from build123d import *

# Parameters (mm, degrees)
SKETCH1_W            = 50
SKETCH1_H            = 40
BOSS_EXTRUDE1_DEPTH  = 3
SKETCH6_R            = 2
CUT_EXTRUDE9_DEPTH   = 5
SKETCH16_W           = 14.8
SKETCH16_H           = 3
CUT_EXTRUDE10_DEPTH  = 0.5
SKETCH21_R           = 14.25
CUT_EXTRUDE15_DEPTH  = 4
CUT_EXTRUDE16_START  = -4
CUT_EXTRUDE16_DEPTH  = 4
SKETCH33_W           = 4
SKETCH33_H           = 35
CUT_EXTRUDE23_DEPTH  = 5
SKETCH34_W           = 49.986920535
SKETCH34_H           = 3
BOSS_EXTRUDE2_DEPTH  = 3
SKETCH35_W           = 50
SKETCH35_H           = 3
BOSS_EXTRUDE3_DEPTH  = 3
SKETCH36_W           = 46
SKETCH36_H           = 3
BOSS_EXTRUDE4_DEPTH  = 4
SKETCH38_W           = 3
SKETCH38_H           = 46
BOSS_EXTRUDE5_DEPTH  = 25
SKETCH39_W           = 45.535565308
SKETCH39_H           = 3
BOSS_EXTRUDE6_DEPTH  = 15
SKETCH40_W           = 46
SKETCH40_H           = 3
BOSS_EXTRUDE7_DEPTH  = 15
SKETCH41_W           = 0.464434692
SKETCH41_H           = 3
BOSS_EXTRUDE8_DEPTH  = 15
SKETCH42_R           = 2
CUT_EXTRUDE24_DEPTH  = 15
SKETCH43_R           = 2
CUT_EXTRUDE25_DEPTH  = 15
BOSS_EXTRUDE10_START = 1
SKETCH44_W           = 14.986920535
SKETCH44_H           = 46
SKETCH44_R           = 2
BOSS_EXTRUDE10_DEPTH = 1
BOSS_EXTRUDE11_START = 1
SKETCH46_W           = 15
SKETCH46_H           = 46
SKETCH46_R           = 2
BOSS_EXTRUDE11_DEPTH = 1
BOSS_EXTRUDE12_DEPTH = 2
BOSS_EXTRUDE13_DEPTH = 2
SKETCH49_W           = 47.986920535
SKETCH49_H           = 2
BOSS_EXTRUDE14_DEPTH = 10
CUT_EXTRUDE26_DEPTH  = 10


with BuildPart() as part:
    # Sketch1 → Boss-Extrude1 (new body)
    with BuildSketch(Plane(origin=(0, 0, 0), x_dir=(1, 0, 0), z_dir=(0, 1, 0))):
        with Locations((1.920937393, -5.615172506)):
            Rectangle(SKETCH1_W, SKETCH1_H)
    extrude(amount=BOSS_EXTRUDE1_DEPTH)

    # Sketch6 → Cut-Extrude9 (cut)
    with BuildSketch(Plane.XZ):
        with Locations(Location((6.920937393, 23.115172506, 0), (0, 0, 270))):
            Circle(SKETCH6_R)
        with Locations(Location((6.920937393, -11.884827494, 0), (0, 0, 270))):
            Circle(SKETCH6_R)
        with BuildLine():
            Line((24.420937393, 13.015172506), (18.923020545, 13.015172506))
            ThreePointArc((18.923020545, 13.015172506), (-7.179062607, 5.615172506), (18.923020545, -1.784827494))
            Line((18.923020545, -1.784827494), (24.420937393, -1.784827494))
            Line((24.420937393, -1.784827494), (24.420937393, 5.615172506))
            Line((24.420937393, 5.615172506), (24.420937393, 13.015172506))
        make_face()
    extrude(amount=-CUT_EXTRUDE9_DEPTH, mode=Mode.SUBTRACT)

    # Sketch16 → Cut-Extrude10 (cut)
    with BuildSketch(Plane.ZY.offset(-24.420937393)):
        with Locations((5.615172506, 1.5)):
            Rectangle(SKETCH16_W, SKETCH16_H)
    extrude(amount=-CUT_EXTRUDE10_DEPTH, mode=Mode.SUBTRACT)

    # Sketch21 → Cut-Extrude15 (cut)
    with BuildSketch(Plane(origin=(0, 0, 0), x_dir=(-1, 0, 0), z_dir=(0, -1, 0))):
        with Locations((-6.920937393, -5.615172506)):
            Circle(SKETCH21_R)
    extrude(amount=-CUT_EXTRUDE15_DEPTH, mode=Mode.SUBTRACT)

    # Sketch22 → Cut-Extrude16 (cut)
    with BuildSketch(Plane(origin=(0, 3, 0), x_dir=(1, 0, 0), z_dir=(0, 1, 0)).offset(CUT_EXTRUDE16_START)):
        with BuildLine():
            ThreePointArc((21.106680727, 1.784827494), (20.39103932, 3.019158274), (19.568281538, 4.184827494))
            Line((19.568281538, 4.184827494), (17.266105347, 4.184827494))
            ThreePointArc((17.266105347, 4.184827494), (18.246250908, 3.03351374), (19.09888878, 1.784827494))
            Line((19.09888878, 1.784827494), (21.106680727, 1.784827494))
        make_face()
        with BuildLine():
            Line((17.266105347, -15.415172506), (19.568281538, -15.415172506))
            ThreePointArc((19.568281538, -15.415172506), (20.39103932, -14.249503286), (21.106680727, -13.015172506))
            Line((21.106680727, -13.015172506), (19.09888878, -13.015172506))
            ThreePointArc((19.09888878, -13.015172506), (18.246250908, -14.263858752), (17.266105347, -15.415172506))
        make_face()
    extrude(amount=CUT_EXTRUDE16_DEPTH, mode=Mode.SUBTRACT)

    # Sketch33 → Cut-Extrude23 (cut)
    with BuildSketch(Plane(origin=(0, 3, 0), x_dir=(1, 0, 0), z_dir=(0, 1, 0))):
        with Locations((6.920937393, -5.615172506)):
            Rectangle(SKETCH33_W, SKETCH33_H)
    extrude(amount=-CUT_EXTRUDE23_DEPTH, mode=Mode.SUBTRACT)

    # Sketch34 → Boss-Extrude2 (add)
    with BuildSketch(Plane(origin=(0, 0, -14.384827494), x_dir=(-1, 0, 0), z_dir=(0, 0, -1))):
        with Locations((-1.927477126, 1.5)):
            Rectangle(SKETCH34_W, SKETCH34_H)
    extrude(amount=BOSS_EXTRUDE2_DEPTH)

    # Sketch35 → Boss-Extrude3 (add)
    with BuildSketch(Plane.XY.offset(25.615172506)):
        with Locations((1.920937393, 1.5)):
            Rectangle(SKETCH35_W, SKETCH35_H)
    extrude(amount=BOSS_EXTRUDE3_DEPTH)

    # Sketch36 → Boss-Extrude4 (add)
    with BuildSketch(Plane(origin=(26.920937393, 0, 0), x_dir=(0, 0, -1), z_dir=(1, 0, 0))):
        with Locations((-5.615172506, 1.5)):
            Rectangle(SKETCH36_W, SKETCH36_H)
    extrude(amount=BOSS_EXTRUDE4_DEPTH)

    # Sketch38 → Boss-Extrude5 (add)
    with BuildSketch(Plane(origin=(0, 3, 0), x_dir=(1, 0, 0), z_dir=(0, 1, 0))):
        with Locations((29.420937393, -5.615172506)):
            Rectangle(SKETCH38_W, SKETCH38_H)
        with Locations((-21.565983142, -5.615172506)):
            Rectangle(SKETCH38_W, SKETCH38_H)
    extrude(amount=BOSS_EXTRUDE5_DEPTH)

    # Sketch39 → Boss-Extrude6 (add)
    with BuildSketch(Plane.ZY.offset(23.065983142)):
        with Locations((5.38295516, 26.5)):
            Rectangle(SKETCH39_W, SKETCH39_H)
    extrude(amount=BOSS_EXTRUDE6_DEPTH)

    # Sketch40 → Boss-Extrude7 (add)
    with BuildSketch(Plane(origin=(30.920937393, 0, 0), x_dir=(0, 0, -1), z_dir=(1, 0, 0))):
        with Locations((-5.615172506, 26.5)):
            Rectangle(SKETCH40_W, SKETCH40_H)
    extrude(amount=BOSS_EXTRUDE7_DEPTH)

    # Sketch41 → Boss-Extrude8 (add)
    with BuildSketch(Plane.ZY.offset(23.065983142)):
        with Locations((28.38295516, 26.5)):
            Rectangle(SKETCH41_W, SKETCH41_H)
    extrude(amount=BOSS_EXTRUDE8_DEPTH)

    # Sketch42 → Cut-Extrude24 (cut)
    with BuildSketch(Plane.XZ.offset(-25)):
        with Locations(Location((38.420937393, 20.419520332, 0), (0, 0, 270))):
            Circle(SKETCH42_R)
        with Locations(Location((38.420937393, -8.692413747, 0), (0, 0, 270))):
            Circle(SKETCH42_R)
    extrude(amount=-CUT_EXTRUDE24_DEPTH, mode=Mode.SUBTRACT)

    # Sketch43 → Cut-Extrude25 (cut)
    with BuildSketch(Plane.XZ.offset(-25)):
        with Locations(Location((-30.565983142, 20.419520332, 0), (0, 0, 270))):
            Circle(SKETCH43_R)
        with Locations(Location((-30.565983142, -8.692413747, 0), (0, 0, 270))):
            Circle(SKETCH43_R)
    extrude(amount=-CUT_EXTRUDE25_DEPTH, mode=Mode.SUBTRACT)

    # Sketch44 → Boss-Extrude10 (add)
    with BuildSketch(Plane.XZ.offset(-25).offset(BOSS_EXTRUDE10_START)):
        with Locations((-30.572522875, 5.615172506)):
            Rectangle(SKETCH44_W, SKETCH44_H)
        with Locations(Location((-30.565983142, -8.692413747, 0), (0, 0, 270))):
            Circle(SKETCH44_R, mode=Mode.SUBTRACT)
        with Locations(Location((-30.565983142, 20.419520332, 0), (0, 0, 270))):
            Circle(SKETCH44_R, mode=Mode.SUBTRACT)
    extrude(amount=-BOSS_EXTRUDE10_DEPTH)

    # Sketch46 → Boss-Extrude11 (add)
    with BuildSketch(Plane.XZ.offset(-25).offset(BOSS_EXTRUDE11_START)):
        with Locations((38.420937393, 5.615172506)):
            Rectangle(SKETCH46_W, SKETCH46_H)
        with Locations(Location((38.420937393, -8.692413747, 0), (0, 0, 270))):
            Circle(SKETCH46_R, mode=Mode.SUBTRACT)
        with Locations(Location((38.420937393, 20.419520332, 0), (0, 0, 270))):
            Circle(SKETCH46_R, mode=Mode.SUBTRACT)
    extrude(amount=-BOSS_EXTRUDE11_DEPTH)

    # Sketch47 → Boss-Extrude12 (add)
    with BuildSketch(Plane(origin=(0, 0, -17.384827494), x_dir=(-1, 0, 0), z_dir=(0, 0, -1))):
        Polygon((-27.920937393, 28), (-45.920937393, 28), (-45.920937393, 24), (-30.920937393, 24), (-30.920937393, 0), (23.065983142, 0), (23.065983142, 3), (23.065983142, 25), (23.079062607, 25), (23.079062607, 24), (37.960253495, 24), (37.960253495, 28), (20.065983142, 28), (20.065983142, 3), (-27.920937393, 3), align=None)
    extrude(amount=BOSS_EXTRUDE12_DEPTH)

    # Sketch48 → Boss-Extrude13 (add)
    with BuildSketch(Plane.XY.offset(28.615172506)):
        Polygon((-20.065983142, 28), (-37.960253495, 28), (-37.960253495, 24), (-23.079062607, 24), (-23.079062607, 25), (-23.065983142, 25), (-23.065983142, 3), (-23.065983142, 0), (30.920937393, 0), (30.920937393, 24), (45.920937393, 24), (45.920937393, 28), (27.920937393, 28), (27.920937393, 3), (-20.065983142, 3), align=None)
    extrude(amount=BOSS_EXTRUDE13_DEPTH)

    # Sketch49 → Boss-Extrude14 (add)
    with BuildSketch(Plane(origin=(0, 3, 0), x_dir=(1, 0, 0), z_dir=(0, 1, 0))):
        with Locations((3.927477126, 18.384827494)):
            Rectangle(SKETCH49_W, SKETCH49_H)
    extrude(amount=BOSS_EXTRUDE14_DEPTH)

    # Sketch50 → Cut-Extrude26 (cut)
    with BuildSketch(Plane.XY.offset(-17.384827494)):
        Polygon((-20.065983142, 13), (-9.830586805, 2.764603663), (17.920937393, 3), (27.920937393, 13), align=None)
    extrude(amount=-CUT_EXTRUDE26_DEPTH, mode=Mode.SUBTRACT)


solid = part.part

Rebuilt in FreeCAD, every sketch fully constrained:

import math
import FreeCAD as App
import Part
import Sketcher
Q = App.Units.Quantity

doc = App.newDocument("Part")
body = doc.addObject("PartDesign::Body", "Body")

# Sketch on XZ plane
sketch1 = doc.addObject("Sketcher::SketchObject", "Sketch")
body.addObject(sketch1)
sketch1.AttachmentSupport = (doc.XZ_Plane, [""])
sketch1.MapMode = "FlatFace"
sketch1.addGeometry(Part.LineSegment(App.Vector(-23.079063, -14.384827, 0), App.Vector(-23.079063, 25.615173, 0)), False)
sketch1.addGeometry(Part.LineSegment(App.Vector(-23.079063, 25.615173, 0), App.Vector(26.920937, 25.615173, 0)), False)
sketch1.addGeometry(Part.LineSegment(App.Vector(26.920937, 25.615173, 0), App.Vector(26.920937, -14.384827, 0)), False)
sketch1.addGeometry(Part.LineSegment(App.Vector(26.920937, -14.384827, 0), App.Vector(-23.079063, -14.384827, 0)), False)
sketch1.addConstraint(Sketcher.Constraint("Coincident", 0, 2, 1, 1))
sketch1.addConstraint(Sketcher.Constraint("Coincident", 1, 2, 2, 1))
sketch1.addConstraint(Sketcher.Constraint("Coincident", 2, 2, 3, 1))
sketch1.addConstraint(Sketcher.Constraint("Coincident", 3, 2, 0, 1))
sketch1.addConstraint(Sketcher.Constraint("Vertical", 0))
sketch1.addConstraint(Sketcher.Constraint("Horizontal", 1))
sketch1.addConstraint(Sketcher.Constraint("Vertical", 2))
sketch1.addConstraint(Sketcher.Constraint("Horizontal", 3))
sketch1.addConstraint(Sketcher.Constraint("DistanceX", 1, 1, 1, 2, 50.0))
sketch1.addConstraint(Sketcher.Constraint("DistanceY", 0, 1, 0, 2, 40.0))
sketch1.addConstraint(Sketcher.Constraint("DistanceX", 0, 2, -1, 1, 23.079063))
sketch1.addConstraint(Sketcher.Constraint("DistanceY", -1, 1, 0, 2, 25.615173))
pad1 = doc.addObject("PartDesign::Pad", "Pad")
body.addObject(pad1)
pad1.Profile = sketch1
pad1.Length = 3
pad1.Reversed = True

# Sketch on XZ plane
sketch2 = doc.addObject("Sketcher::SketchObject", "Sketch001")
body.addObject(sketch2)
sketch2.AttachmentSupport = (doc.XZ_Plane, [""])
sketch2.MapMode = "FlatFace"
sketch2.addGeometry(Part.Circle(App.Vector(6.920937, 23.115173, 0), App.Vector(0, 0, 1), 2), False)
sketch2.addGeometry(Part.Circle(App.Vector(6.920937, -11.884827, 0), App.Vector(0, 0, 1), 2), False)
sketch2.addGeometry(Part.LineSegment(App.Vector(24.420937, 13.015173, 0), App.Vector(18.923021, 13.015173, 0)), False)
sketch2.addGeometry(Part.ArcOfCircle(Part.Circle(App.Vector(6.920937, 5.615173, 0), App.Vector(0, 0, 1), 14.1), math.radians(31.656308), math.radians(328.343692)), False)
sketch2.addGeometry(Part.LineSegment(App.Vector(18.923021, -1.784827, 0), App.Vector(24.420937, -1.784827, 0)), False)
sketch2.addGeometry(Part.LineSegment(App.Vector(24.420937, -1.784827, 0), App.Vector(24.420937, 13.015173, 0)), False)
sketch2.addConstraint(Sketcher.Constraint("Coincident", 2, 2, 3, 1))
sketch2.addConstraint(Sketcher.Constraint("Coincident", 3, 2, 4, 1))
sketch2.addConstraint(Sketcher.Constraint("Coincident", 4, 2, 5, 1))
sketch2.addConstraint(Sketcher.Constraint("Coincident", 5, 2, 2, 1))
sketch2.addConstraint(Sketcher.Constraint("Horizontal", 2))
sketch2.addConstraint(Sketcher.Constraint("Horizontal", 4))
sketch2.addConstraint(Sketcher.Constraint("Vertical", 5))
sketch2.addConstraint(Sketcher.Constraint("Equal", 0, 1))
sketch2.addConstraint(Sketcher.Constraint("Vertical", 0, 3, 1, 3))
sketch2.addConstraint(Sketcher.Constraint("Vertical", 1, 3, 3, 3))
sketch2.addConstraint(Sketcher.Constraint("Vertical", 2, 2, 3, 2))
sketch2.addConstraint(Sketcher.Constraint("Diameter", 0, 4.0))
sketch2.addConstraint(Sketcher.Constraint("Radius", 3, 14.1))
sketch2.addConstraint(Sketcher.Constraint("DistanceY", 5, 1, 5, 2, 14.8))
sketch2.addConstraint(Sketcher.Constraint("DistanceY", 1, 3, 0, 3, 35.0))
sketch2.addConstraint(Sketcher.Constraint("DistanceY", 3, 3, 0, 3, 17.5))
sketch2.addConstraint(Sketcher.Constraint("DistanceX", 3, 3, 4, 2, 17.5))
sketch2.addConstraint(Sketcher.Constraint("DistanceX", -1, 1, 2, 2, 18.923021))
sketch2.addConstraint(Sketcher.Constraint("DistanceY", -1, 1, 0, 3, 23.115173))
pocket1 = doc.addObject("PartDesign::Pocket", "Pocket")
body.addObject(pocket1)
pocket1.Profile = sketch2
pocket1.Length = 5

# Sketch on YZ plane
sketch3 = doc.addObject("Sketcher::SketchObject", "Sketch002")
body.addObject(sketch3)
sketch3.AttachmentSupport = (doc.YZ_Plane, [""])
sketch3.MapMode = "FlatFace"
sketch3.AttachmentOffset = App.Placement(App.Vector(0, 0, 24.420937), App.Rotation())
sketch3.addGeometry(Part.LineSegment(App.Vector(3, -1.784827, 0), App.Vector(0, -1.784827, 0)), False)
sketch3.addGeometry(Part.LineSegment(App.Vector(0, -1.784827, 0), App.Vector(0, 13.015173, 0)), False)
sketch3.addGeometry(Part.LineSegment(App.Vector(0, 13.015173, 0), App.Vector(3, 13.015173, 0)), False)
sketch3.addGeometry(Part.LineSegment(App.Vector(3, 13.015173, 0), App.Vector(3, -1.784827, 0)), False)
sketch3.addConstraint(Sketcher.Constraint("Coincident", 0, 2, 1, 1))
sketch3.addConstraint(Sketcher.Constraint("Coincident", 1, 2, 2, 1))
sketch3.addConstraint(Sketcher.Constraint("Coincident", 2, 2, 3, 1))
sketch3.addConstraint(Sketcher.Constraint("Coincident", 3, 2, 0, 1))
sketch3.addConstraint(Sketcher.Constraint("Horizontal", 0))
sketch3.addConstraint(Sketcher.Constraint("Vertical", 1))
sketch3.addConstraint(Sketcher.Constraint("Horizontal", 2))
sketch3.addConstraint(Sketcher.Constraint("Vertical", 3))
sketch3.addConstraint(Sketcher.Constraint("PointOnObject", 0, 2, -2))
sketch3.addConstraint(Sketcher.Constraint("DistanceX", 0, 2, 0, 1, 3.0))
sketch3.addConstraint(Sketcher.Constraint("DistanceY", 1, 1, 1, 2, 14.8))
sketch3.addConstraint(Sketcher.Constraint("DistanceY", 0, 2, -1, 1, 1.784827))
pocket2 = doc.addObject("PartDesign::Pocket", "Pocket001")
body.addObject(pocket2)
pocket2.Profile = sketch3
pocket2.Length = 0.5
pocket2.Reversed = True

# Sketch on XZ plane
sketch4 = doc.addObject("Sketcher::SketchObject", "Sketch003")
body.addObject(sketch4)
sketch4.AttachmentSupport = (doc.XZ_Plane, [""])
sketch4.MapMode = "FlatFace"
sketch4.addGeometry(Part.Circle(App.Vector(6.920937, 5.615173, 0), App.Vector(0, 0, 1), 14.25), False)
sketch4.addConstraint(Sketcher.Constraint("Diameter", 0, 28.5))
sketch4.addConstraint(Sketcher.Constraint("DistanceX", -1, 1, 0, 3, 6.920937))
sketch4.addConstraint(Sketcher.Constraint("DistanceY", -1, 1, 0, 3, 5.615173))
pocket3 = doc.addObject("PartDesign::Pocket", "Pocket002")
body.addObject(pocket3)
pocket3.Profile = sketch4
pocket3.Length = 4

# Sketch on XZ plane
sketch5 = doc.addObject("Sketcher::SketchObject", "Sketch004")
body.addObject(sketch5)
sketch5.AttachmentSupport = (doc.XZ_Plane, [""])
sketch5.MapMode = "FlatFace"
sketch5.AttachmentOffset = App.Placement(App.Vector(0, 0, 1), App.Rotation())
sketch5.addGeometry(Part.ArcOfCircle(Part.Circle(App.Vector(6.920937, 5.615172, 0), App.Vector(0, 0, 1), 15.999853), math.radians(-37.770896), math.radians(-27.548819)), False)
sketch5.addGeometry(Part.LineSegment(App.Vector(19.568282, -4.184827, 0), App.Vector(17.266105, -4.184827, 0)), False)
sketch5.addGeometry(Part.ArcOfCircle(Part.Circle(App.Vector(6.920937, 5.615172, 0), App.Vector(0, 0, 1), 14.25), math.radians(-43.449842), math.radians(-31.285191)), False)
sketch5.addGeometry(Part.LineSegment(App.Vector(19.098889, -1.784827, 0), App.Vector(21.106681, -1.784827, 0)), False)
sketch5.addGeometry(Part.LineSegment(App.Vector(17.266105, 15.415173, 0), App.Vector(19.568282, 15.415173, 0)), False)
sketch5.addGeometry(Part.ArcOfCircle(Part.Circle(App.Vector(6.920937, 5.615173, 0), App.Vector(0, 0, 1), 15.999853), math.radians(27.548819), math.radians(37.770896)), False)
sketch5.addGeometry(Part.LineSegment(App.Vector(21.106681, 13.015173, 0), App.Vector(19.098889, 13.015173, 0)), False)
sketch5.addGeometry(Part.ArcOfCircle(Part.Circle(App.Vector(6.920937, 5.615173, 0), App.Vector(0, 0, 1), 14.25), math.radians(31.285191), math.radians(43.449842)), False)
sketch5.addConstraint(Sketcher.Constraint("Coincident", 0, 1, 1, 1))
sketch5.addConstraint(Sketcher.Constraint("Coincident", 1, 2, 2, 1))
sketch5.addConstraint(Sketcher.Constraint("Coincident", 2, 2, 3, 1))
sketch5.addConstraint(Sketcher.Constraint("Coincident", 3, 2, 0, 2))
sketch5.addConstraint(Sketcher.Constraint("Coincident", 4, 2, 5, 2))
sketch5.addConstraint(Sketcher.Constraint("Coincident", 5, 1, 6, 1))
sketch5.addConstraint(Sketcher.Constraint("Coincident", 6, 2, 7, 1))
sketch5.addConstraint(Sketcher.Constraint("Coincident", 7, 2, 4, 1))
sketch5.addConstraint(Sketcher.Constraint("Horizontal", 1))
sketch5.addConstraint(Sketcher.Constraint("Horizontal", 3))
sketch5.addConstraint(Sketcher.Constraint("Horizontal", 4))
sketch5.addConstraint(Sketcher.Constraint("Horizontal", 6))
sketch5.addConstraint(Sketcher.Constraint("Coincident", 2, 3, 0, 3))
sketch5.addConstraint(Sketcher.Constraint("Coincident", 5, 3, 0, 3))
sketch5.addConstraint(Sketcher.Constraint("Coincident", 7, 3, 0, 3))
sketch5.addConstraint(Sketcher.Constraint("Equal", 0, 5))
sketch5.addConstraint(Sketcher.Constraint("Equal", 2, 7))
sketch5.addConstraint(Sketcher.Constraint("Vertical", 0, 1, 4, 2))
sketch5.addConstraint(Sketcher.Constraint("Vertical", 3, 2, 5, 1))
sketch5.addConstraint(Sketcher.Constraint("Radius", 2, 14.25))
sketch5.addConstraint(Sketcher.Constraint("DistanceY", 0, 1, 0, 3, 9.8))
sketch5.addConstraint(Sketcher.Constraint("DistanceY", 0, 1, 2, 2, 2.4))
sketch5.addConstraint(Sketcher.Constraint("Radius", 0, 15.999853))
sketch5.addConstraint(Sketcher.Constraint("DistanceX", -1, 1, 0, 1, 19.568282))
sketch5.addConstraint(Sketcher.Constraint("DistanceY", -1, 1, 0, 3, 5.615172))
pocket4 = doc.addObject("PartDesign::Pocket", "Pocket003")
body.addObject(pocket4)
pocket4.Profile = sketch5
pocket4.Length = 4

# Sketch on XZ plane
sketch6 = doc.addObject("Sketcher::SketchObject", "Sketch005")
body.addObject(sketch6)
sketch6.AttachmentSupport = (doc.XZ_Plane, [""])
sketch6.MapMode = "FlatFace"
sketch6.AttachmentOffset = App.Placement(App.Vector(0, 0, -3), App.Rotation())
sketch6.addGeometry(Part.LineSegment(App.Vector(4.920937, -11.884827, 0), App.Vector(4.920937, 23.115173, 0)), False)
sketch6.addGeometry(Part.LineSegment(App.Vector(4.920937, 23.115173, 0), App.Vector(8.920937, 23.115173, 0)), False)
sketch6.addGeometry(Part.LineSegment(App.Vector(8.920937, 23.115173, 0), App.Vector(8.920937, -11.884827, 0)), False)
sketch6.addGeometry(Part.LineSegment(App.Vector(8.920937, -11.884827, 0), App.Vector(4.920937, -11.884827, 0)), False)
sketch6.addConstraint(Sketcher.Constraint("Coincident", 0, 2, 1, 1))
sketch6.addConstraint(Sketcher.Constraint("Coincident", 1, 2, 2, 1))
sketch6.addConstraint(Sketcher.Constraint("Coincident", 2, 2, 3, 1))
sketch6.addConstraint(Sketcher.Constraint("Coincident", 3, 2, 0, 1))
sketch6.addConstraint(Sketcher.Constraint("Vertical", 0))
sketch6.addConstraint(Sketcher.Constraint("Horizontal", 1))
sketch6.addConstraint(Sketcher.Constraint("Vertical", 2))
sketch6.addConstraint(Sketcher.Constraint("Horizontal", 3))
sketch6.addConstraint(Sketcher.Constraint("DistanceX", 1, 1, 1, 2, 4.0))
sketch6.addConstraint(Sketcher.Constraint("DistanceY", 0, 1, 0, 2, 35.0))
sketch6.addConstraint(Sketcher.Constraint("DistanceX", -1, 1, 0, 2, 4.920937))
sketch6.addConstraint(Sketcher.Constraint("DistanceY", -1, 1, 0, 2, 23.115173))
pocket5 = doc.addObject("PartDesign::Pocket", "Pocket004")
body.addObject(pocket5)
pocket5.Profile = sketch6
pocket5.Length = 5
pocket5.Reversed = True

# Sketch on XY plane
sketch7 = doc.addObject("Sketcher::SketchObject", "Sketch006")
body.addObject(sketch7)
sketch7.AttachmentSupport = (doc.XY_Plane, [""])
sketch7.MapMode = "FlatFace"
sketch7.AttachmentOffset = App.Placement(App.Vector(0, 0, -14.384827), App.Rotation())
sketch7.addGeometry(Part.LineSegment(App.Vector(26.920937, 3, 0), App.Vector(26.920937, 0, 0)), False)
sketch7.addGeometry(Part.LineSegment(App.Vector(26.920937, 0, 0), App.Vector(-23.065983, 0, 0)), False)
sketch7.addGeometry(Part.LineSegment(App.Vector(-23.065983, 0, 0), App.Vector(-23.065983, 3, 0)), False)
sketch7.addGeometry(Part.LineSegment(App.Vector(-23.065983, 3, 0), App.Vector(26.920937, 3, 0)), False)
sketch7.addConstraint(Sketcher.Constraint("Coincident", 0, 2, 1, 1))
sketch7.addConstraint(Sketcher.Constraint("Coincident", 1, 2, 2, 1))
sketch7.addConstraint(Sketcher.Constraint("Coincident", 2, 2, 3, 1))
sketch7.addConstraint(Sketcher.Constraint("Coincident", 3, 2, 0, 1))
sketch7.addConstraint(Sketcher.Constraint("Vertical", 0))
sketch7.addConstraint(Sketcher.Constraint("Horizontal", 1))
sketch7.addConstraint(Sketcher.Constraint("Vertical", 2))
sketch7.addConstraint(Sketcher.Constraint("Horizontal", 3))
sketch7.addConstraint(Sketcher.Constraint("PointOnObject", 0, 2, -1))
sketch7.addConstraint(Sketcher.Constraint("DistanceY", 0, 2, 0, 1, 3.0))
sketch7.addConstraint(Sketcher.Constraint("DistanceX", 1, 2, 1, 1, 49.986921))
sketch7.addConstraint(Sketcher.Constraint("DistanceX", -1, 1, 0, 2, 26.920937))
pad2 = doc.addObject("PartDesign::Pad", "Pad001")
body.addObject(pad2)
pad2.Profile = sketch7
pad2.Length = 3
pad2.Reversed = True

# Sketch on XY plane
sketch8 = doc.addObject("Sketcher::SketchObject", "Sketch007")
body.addObject(sketch8)
sketch8.AttachmentSupport = (doc.XY_Plane, [""])
sketch8.MapMode = "FlatFace"
sketch8.AttachmentOffset = App.Placement(App.Vector(0, 0, 25.615173), App.Rotation())
sketch8.addGeometry(Part.LineSegment(App.Vector(-23.079063, 3, 0), App.Vector(-23.079063, 0, 0)), False)
sketch8.addGeometry(Part.LineSegment(App.Vector(-23.079063, 0, 0), App.Vector(26.920937, 0, 0)), False)
sketch8.addGeometry(Part.LineSegment(App.Vector(26.920937, 0, 0), App.Vector(26.920937, 3, 0)), False)
sketch8.addGeometry(Part.LineSegment(App.Vector(26.920937, 3, 0), App.Vector(-23.079063, 3, 0)), False)
sketch8.addConstraint(Sketcher.Constraint("Coincident", 0, 2, 1, 1))
sketch8.addConstraint(Sketcher.Constraint("Coincident", 1, 2, 2, 1))
sketch8.addConstraint(Sketcher.Constraint("Coincident", 2, 2, 3, 1))
sketch8.addConstraint(Sketcher.Constraint("Coincident", 3, 2, 0, 1))
sketch8.addConstraint(Sketcher.Constraint("Vertical", 0))
sketch8.addConstraint(Sketcher.Constraint("Horizontal", 1))
sketch8.addConstraint(Sketcher.Constraint("Vertical", 2))
sketch8.addConstraint(Sketcher.Constraint("Horizontal", 3))
sketch8.addConstraint(Sketcher.Constraint("PointOnObject", 0, 2, -1))
sketch8.addConstraint(Sketcher.Constraint("DistanceX", 1, 1, 1, 2, 50.0))
sketch8.addConstraint(Sketcher.Constraint("DistanceY", 0, 2, 0, 1, 3.0))
sketch8.addConstraint(Sketcher.Constraint("DistanceX", 0, 2, -1, 1, 23.079063))
pad3 = doc.addObject("PartDesign::Pad", "Pad002")
body.addObject(pad3)
pad3.Profile = sketch8
pad3.Length = 3

# Sketch on YZ plane
sketch9 = doc.addObject("Sketcher::SketchObject", "Sketch008")
body.addObject(sketch9)
sketch9.AttachmentSupport = (doc.YZ_Plane, [""])
sketch9.MapMode = "FlatFace"
sketch9.AttachmentOffset = App.Placement(App.Vector(0, 0, 26.920937), App.Rotation())
sketch9.addGeometry(Part.LineSegment(App.Vector(3, 28.615173, 0), App.Vector(0, 28.615173, 0)), False)
sketch9.addGeometry(Part.LineSegment(App.Vector(0, 28.615173, 0), App.Vector(0, -17.384827, 0)), False)
sketch9.addGeometry(Part.LineSegment(App.Vector(0, -17.384827, 0), App.Vector(3, -17.384827, 0)), False)
sketch9.addGeometry(Part.LineSegment(App.Vector(3, -17.384827, 0), App.Vector(3, 28.615173, 0)), False)
sketch9.addConstraint(Sketcher.Constraint("Coincident", 0, 2, 1, 1))
sketch9.addConstraint(Sketcher.Constraint("Coincident", 1, 2, 2, 1))
sketch9.addConstraint(Sketcher.Constraint("Coincident", 2, 2, 3, 1))
sketch9.addConstraint(Sketcher.Constraint("Coincident", 3, 2, 0, 1))
sketch9.addConstraint(Sketcher.Constraint("Horizontal", 0))
sketch9.addConstraint(Sketcher.Constraint("Vertical", 1))
sketch9.addConstraint(Sketcher.Constraint("Horizontal", 2))
sketch9.addConstraint(Sketcher.Constraint("Vertical", 3))
sketch9.addConstraint(Sketcher.Constraint("PointOnObject", 0, 2, -2))
sketch9.addConstraint(Sketcher.Constraint("DistanceX", 0, 2, 0, 1, 3.0))
sketch9.addConstraint(Sketcher.Constraint("DistanceY", 1, 2, 1, 1, 46.0))
sketch9.addConstraint(Sketcher.Constraint("DistanceY", -1, 1, 0, 2, 28.615173))
pad4 = doc.addObject("PartDesign::Pad", "Pad003")
body.addObject(pad4)
pad4.Profile = sketch9
pad4.Length = 4

# Sketch on XZ plane
sketch10 = doc.addObject("Sketcher::SketchObject", "Sketch009")
body.addObject(sketch10)
sketch10.AttachmentSupport = (doc.XZ_Plane, [""])
sketch10.MapMode = "FlatFace"
sketch10.AttachmentOffset = App.Placement(App.Vector(0, 0, -3), App.Rotation())
sketch10.addGeometry(Part.LineSegment(App.Vector(27.920937, -17.384827, 0), App.Vector(27.920937, 28.615173, 0)), False)
sketch10.addGeometry(Part.LineSegment(App.Vector(27.920937, 28.615173, 0), App.Vector(30.920937, 28.615173, 0)), False)
sketch10.addGeometry(Part.LineSegment(App.Vector(30.920937, 28.615173, 0), App.Vector(30.920937, -17.384827, 0)), False)
sketch10.addGeometry(Part.LineSegment(App.Vector(30.920937, -17.384827, 0), App.Vector(27.920937, -17.384827, 0)), False)
sketch10.addGeometry(Part.LineSegment(App.Vector(-23.065983, -17.384827, 0), App.Vector(-23.065983, 28.615173, 0)), False)
sketch10.addGeometry(Part.LineSegment(App.Vector(-23.065983, 28.615173, 0), App.Vector(-20.065983, 28.615173, 0)), False)
sketch10.addGeometry(Part.LineSegment(App.Vector(-20.065983, 28.615173, 0), App.Vector(-20.065983, -17.384827, 0)), False)
sketch10.addGeometry(Part.LineSegment(App.Vector(-20.065983, -17.384827, 0), App.Vector(-23.065983, -17.384827, 0)), False)
sketch10.addConstraint(Sketcher.Constraint("Coincident", 0, 2, 1, 1))
sketch10.addConstraint(Sketcher.Constraint("Coincident", 1, 2, 2, 1))
sketch10.addConstraint(Sketcher.Constraint("Coincident", 2, 2, 3, 1))
sketch10.addConstraint(Sketcher.Constraint("Coincident", 3, 2, 0, 1))
sketch10.addConstraint(Sketcher.Constraint("Coincident", 4, 2, 5, 1))
sketch10.addConstraint(Sketcher.Constraint("Coincident", 5, 2, 6, 1))
sketch10.addConstraint(Sketcher.Constraint("Coincident", 6, 2, 7, 1))
sketch10.addConstraint(Sketcher.Constraint("Coincident", 7, 2, 4, 1))
sketch10.addConstraint(Sketcher.Constraint("Vertical", 0))
sketch10.addConstraint(Sketcher.Constraint("Horizontal", 1))
sketch10.addConstraint(Sketcher.Constraint("Vertical", 2))
sketch10.addConstraint(Sketcher.Constraint("Horizontal", 3))
sketch10.addConstraint(Sketcher.Constraint("Vertical", 4))
sketch10.addConstraint(Sketcher.Constraint("Horizontal", 5))
sketch10.addConstraint(Sketcher.Constraint("Vertical", 6))
sketch10.addConstraint(Sketcher.Constraint("Horizontal", 7))
sketch10.addConstraint(Sketcher.Constraint("Horizontal", 1, 2, 4, 2))
sketch10.addConstraint(Sketcher.Constraint("Horizontal", 3, 2, 6, 2))
sketch10.addConstraint(Sketcher.Constraint("Equal", 3, 5))
sketch10.addConstraint(Sketcher.Constraint("DistanceX", 1, 1, 1, 2, 3.0))
sketch10.addConstraint(Sketcher.Constraint("DistanceY", 0, 1, 0, 2, 46.0))
sketch10.addConstraint(Sketcher.Constraint("DistanceX", 4, 2, 0, 2, 50.986921))
sketch10.addConstraint(Sketcher.Constraint("DistanceX", -1, 1, 0, 2, 27.920937))
sketch10.addConstraint(Sketcher.Constraint("DistanceY", -1, 1, 0, 2, 28.615173))
pad5 = doc.addObject("PartDesign::Pad", "Pad004")
body.addObject(pad5)
pad5.Profile = sketch10
pad5.Length = 25
pad5.Reversed = True

# Sketch on YZ plane
sketch11 = doc.addObject("Sketcher::SketchObject", "Sketch010")
body.addObject(sketch11)
sketch11.AttachmentSupport = (doc.YZ_Plane, [""])
sketch11.MapMode = "FlatFace"
sketch11.AttachmentOffset = App.Placement(App.Vector(0, 0, -23.065983), App.Rotation())
sketch11.addGeometry(Part.LineSegment(App.Vector(28, -17.384827, 0), App.Vector(25, -17.384827, 0)), False)
sketch11.addGeometry(Part.LineSegment(App.Vector(25, -17.384827, 0), App.Vector(25, 28.150738, 0)), False)
sketch11.addGeometry(Part.LineSegment(App.Vector(25, 28.150738, 0), App.Vector(28, 28.150738, 0)), False)
sketch11.addGeometry(Part.LineSegment(App.Vector(28, 28.150738, 0), App.Vector(28, -17.384827, 0)), False)
sketch11.addConstraint(Sketcher.Constraint("Coincident", 0, 2, 1, 1))
sketch11.addConstraint(Sketcher.Constraint("Coincident", 1, 2, 2, 1))
sketch11.addConstraint(Sketcher.Constraint("Coincident", 2, 2, 3, 1))
sketch11.addConstraint(Sketcher.Constraint("Coincident", 3, 2, 0, 1))
sketch11.addConstraint(Sketcher.Constraint("Horizontal", 0))
sketch11.addConstraint(Sketcher.Constraint("Vertical", 1))
sketch11.addConstraint(Sketcher.Constraint("Horizontal", 2))
sketch11.addConstraint(Sketcher.Constraint("Vertical", 3))
sketch11.addConstraint(Sketcher.Constraint("DistanceX", 0, 2, 0, 1, 3.0))
sketch11.addConstraint(Sketcher.Constraint("DistanceX", -1, 1, 0, 2, 25.0))
sketch11.addConstraint(Sketcher.Constraint("DistanceY", 1, 1, 1, 2, 45.535565))
sketch11.addConstraint(Sketcher.Constraint("DistanceY", 0, 2, -1, 1, 17.384827))
pad6 = doc.addObject("PartDesign::Pad", "Pad005")
body.addObject(pad6)
pad6.Profile = sketch11
pad6.Length = 15
pad6.Reversed = True

# Sketch on YZ plane
sketch12 = doc.addObject("Sketcher::SketchObject", "Sketch011")
body.addObject(sketch12)
sketch12.AttachmentSupport = (doc.YZ_Plane, [""])
sketch12.MapMode = "FlatFace"
sketch12.AttachmentOffset = App.Placement(App.Vector(0, 0, 30.920937), App.Rotation())
sketch12.addGeometry(Part.LineSegment(App.Vector(28, 28.615173, 0), App.Vector(25, 28.615173, 0)), False)
sketch12.addGeometry(Part.LineSegment(App.Vector(25, 28.615173, 0), App.Vector(25, -17.384827, 0)), False)
sketch12.addGeometry(Part.LineSegment(App.Vector(25, -17.384827, 0), App.Vector(28, -17.384827, 0)), False)
sketch12.addGeometry(Part.LineSegment(App.Vector(28, -17.384827, 0), App.Vector(28, 28.615173, 0)), False)
sketch12.addConstraint(Sketcher.Constraint("Coincident", 0, 2, 1, 1))
sketch12.addConstraint(Sketcher.Constraint("Coincident", 1, 2, 2, 1))
sketch12.addConstraint(Sketcher.Constraint("Coincident", 2, 2, 3, 1))
sketch12.addConstraint(Sketcher.Constraint("Coincident", 3, 2, 0, 1))
sketch12.addConstraint(Sketcher.Constraint("Horizontal", 0))
sketch12.addConstraint(Sketcher.Constraint("Vertical", 1))
sketch12.addConstraint(Sketcher.Constraint("Horizontal", 2))
sketch12.addConstraint(Sketcher.Constraint("Vertical", 3))
sketch12.addConstraint(Sketcher.Constraint("DistanceX", 0, 2, 0, 1, 3.0))
sketch12.addConstraint(Sketcher.Constraint("DistanceY", 1, 2, 1, 1, 46.0))
sketch12.addConstraint(Sketcher.Constraint("DistanceX", -1, 1, 0, 2, 25.0))
sketch12.addConstraint(Sketcher.Constraint("DistanceY", -1, 1, 0, 2, 28.615173))
pad7 = doc.addObject("PartDesign::Pad", "Pad006")
body.addObject(pad7)
pad7.Profile = sketch12
pad7.Length = 15

# Sketch on YZ plane
sketch13 = doc.addObject("Sketcher::SketchObject", "Sketch012")
body.addObject(sketch13)
sketch13.AttachmentSupport = (doc.YZ_Plane, [""])
sketch13.MapMode = "FlatFace"
sketch13.AttachmentOffset = App.Placement(App.Vector(0, 0, -23.065983), App.Rotation())
sketch13.addGeometry(Part.LineSegment(App.Vector(28, 28.150738, 0), App.Vector(25, 28.150738, 0)), False)
sketch13.addGeometry(Part.LineSegment(App.Vector(25, 28.150738, 0), App.Vector(25, 28.615173, 0)), False)
sketch13.addGeometry(Part.LineSegment(App.Vector(25, 28.615173, 0), App.Vector(28, 28.615173, 0)), False)
sketch13.addGeometry(Part.LineSegment(App.Vector(28, 28.615173, 0), App.Vector(28, 28.150738, 0)), False)
sketch13.addConstraint(Sketcher.Constraint("Coincident", 0, 2, 1, 1))
sketch13.addConstraint(Sketcher.Constraint("Coincident", 1, 2, 2, 1))
sketch13.addConstraint(Sketcher.Constraint("Coincident", 2, 2, 3, 1))
sketch13.addConstraint(Sketcher.Constraint("Coincident", 3, 2, 0, 1))
sketch13.addConstraint(Sketcher.Constraint("Horizontal", 0))
sketch13.addConstraint(Sketcher.Constraint("Vertical", 1))
sketch13.addConstraint(Sketcher.Constraint("Horizontal", 2))
sketch13.addConstraint(Sketcher.Constraint("Vertical", 3))
sketch13.addConstraint(Sketcher.Constraint("DistanceX", 0, 2, 0, 1, 3.0))
sketch13.addConstraint(Sketcher.Constraint("DistanceX", -1, 1, 0, 2, 25.0))
sketch13.addConstraint(Sketcher.Constraint("DistanceY", 1, 1, 1, 2, 0.464435))
sketch13.addConstraint(Sketcher.Constraint("DistanceY", -1, 1, 0, 2, 28.150738))
pad8 = doc.addObject("PartDesign::Pad", "Pad007")
body.addObject(pad8)
pad8.Profile = sketch13
pad8.Length = 15
pad8.Reversed = True

# Sketch on XZ plane
sketch14 = doc.addObject("Sketcher::SketchObject", "Sketch013")
body.addObject(sketch14)
sketch14.AttachmentSupport = (doc.XZ_Plane, [""])
sketch14.MapMode = "FlatFace"
sketch14.AttachmentOffset = App.Placement(App.Vector(0, 0, -25), App.Rotation())
sketch14.addGeometry(Part.Circle(App.Vector(38.420937, 20.41952, 0), App.Vector(0, 0, 1), 2), False)
sketch14.addGeometry(Part.Circle(App.Vector(38.420937, -8.692414, 0), App.Vector(0, 0, 1), 2), False)
sketch14.addConstraint(Sketcher.Constraint("Equal", 0, 1))
sketch14.addConstraint(Sketcher.Constraint("Vertical", 0, 3, 1, 3))
sketch14.addConstraint(Sketcher.Constraint("Diameter", 0, 4.0))
sketch14.addConstraint(Sketcher.Constraint("DistanceY", -1, 1, 0, 3, 20.41952))
sketch14.addConstraint(Sketcher.Constraint("DistanceX", -1, 1, 0, 3, 38.420937))
sketch14.addConstraint(Sketcher.Constraint("DistanceY", 1, 3, -1, 1, 8.692414))
pocket6 = doc.addObject("PartDesign::Pocket", "Pocket005")
body.addObject(pocket6)
pocket6.Profile = sketch14
pocket6.Length = 15

# Sketch on XZ plane
sketch15 = doc.addObject("Sketcher::SketchObject", "Sketch014")
body.addObject(sketch15)
sketch15.AttachmentSupport = (doc.XZ_Plane, [""])
sketch15.MapMode = "FlatFace"
sketch15.AttachmentOffset = App.Placement(App.Vector(0, 0, -25), App.Rotation())
sketch15.addGeometry(Part.Circle(App.Vector(-30.565983, 20.41952, 0), App.Vector(0, 0, 1), 2), False)
sketch15.addGeometry(Part.Circle(App.Vector(-30.565983, -8.692414, 0), App.Vector(0, 0, 1), 2), False)
sketch15.addConstraint(Sketcher.Constraint("Equal", 0, 1))
sketch15.addConstraint(Sketcher.Constraint("Vertical", 0, 3, 1, 3))
sketch15.addConstraint(Sketcher.Constraint("Diameter", 0, 4.0))
sketch15.addConstraint(Sketcher.Constraint("DistanceY", -1, 1, 0, 3, 20.41952))
sketch15.addConstraint(Sketcher.Constraint("DistanceX", 0, 3, -1, 1, 30.565983))
sketch15.addConstraint(Sketcher.Constraint("DistanceY", 1, 3, -1, 1, 8.692414))
pocket7 = doc.addObject("PartDesign::Pocket", "Pocket006")
body.addObject(pocket7)
pocket7.Profile = sketch15
pocket7.Length = 15

# Sketch on XZ plane
sketch16 = doc.addObject("Sketcher::SketchObject", "Sketch015")
body.addObject(sketch16)
sketch16.AttachmentSupport = (doc.XZ_Plane, [""])
sketch16.MapMode = "FlatFace"
sketch16.AttachmentOffset = App.Placement(App.Vector(0, 0, -24), App.Rotation())
sketch16.addGeometry(Part.LineSegment(App.Vector(-38.065983, 28.615173, 0), App.Vector(-38.065983, -17.384827, 0)), False)
sketch16.addGeometry(Part.LineSegment(App.Vector(-38.065983, -17.384827, 0), App.Vector(-23.079063, -17.384827, 0)), False)
sketch16.addGeometry(Part.LineSegment(App.Vector(-23.079063, -17.384827, 0), App.Vector(-23.079063, 28.615173, 0)), False)
sketch16.addGeometry(Part.LineSegment(App.Vector(-23.079063, 28.615173, 0), App.Vector(-38.065983, 28.615173, 0)), False)
sketch16.addGeometry(Part.Circle(App.Vector(-30.565983, -8.692414, 0), App.Vector(0, 0, 1), 2), False)
sketch16.addGeometry(Part.Circle(App.Vector(-30.565983, 20.41952, 0), App.Vector(0, 0, 1), 2), False)
sketch16.addConstraint(Sketcher.Constraint("Coincident", 0, 2, 1, 1))
sketch16.addConstraint(Sketcher.Constraint("Coincident", 1, 2, 2, 1))
sketch16.addConstraint(Sketcher.Constraint("Coincident", 2, 2, 3, 1))
sketch16.addConstraint(Sketcher.Constraint("Coincident", 3, 2, 0, 1))
sketch16.addConstraint(Sketcher.Constraint("Vertical", 0))
sketch16.addConstraint(Sketcher.Constraint("Horizontal", 1))
sketch16.addConstraint(Sketcher.Constraint("Vertical", 2))
sketch16.addConstraint(Sketcher.Constraint("Horizontal", 3))
sketch16.addConstraint(Sketcher.Constraint("Equal", 4, 5))
sketch16.addConstraint(Sketcher.Constraint("Vertical", 4, 3, 5, 3))
sketch16.addConstraint(Sketcher.Constraint("Diameter", 4, 4.0))
sketch16.addConstraint(Sketcher.Constraint("DistanceY", 0, 2, 0, 1, 46.0))
sketch16.addConstraint(Sketcher.Constraint("DistanceX", 0, 2, 4, 3, 7.5))
sketch16.addConstraint(Sketcher.Constraint("DistanceX", 1, 1, 1, 2, 14.986921))
sketch16.addConstraint(Sketcher.Constraint("DistanceY", -1, 1, 5, 3, 20.41952))
sketch16.addConstraint(Sketcher.Constraint("DistanceX", 4, 3, -1, 1, 30.565983))
sketch16.addConstraint(Sketcher.Constraint("DistanceY", 4, 3, -1, 1, 8.692414))
sketch16.addConstraint(Sketcher.Constraint("DistanceY", 0, 2, -1, 1, 17.384827))
pad9 = doc.addObject("PartDesign::Pad", "Pad008")
body.addObject(pad9)
pad9.Profile = sketch16
pad9.Length = 1
pad9.Reversed = True

# Sketch on XZ plane
sketch17 = doc.addObject("Sketcher::SketchObject", "Sketch016")
body.addObject(sketch17)
sketch17.AttachmentSupport = (doc.XZ_Plane, [""])
sketch17.MapMode = "FlatFace"
sketch17.AttachmentOffset = App.Placement(App.Vector(0, 0, -24), App.Rotation())
sketch17.addGeometry(Part.LineSegment(App.Vector(30.920937, 28.615173, 0), App.Vector(30.920937, -17.384827, 0)), False)
sketch17.addGeometry(Part.LineSegment(App.Vector(30.920937, -17.384827, 0), App.Vector(45.920937, -17.384827, 0)), False)
sketch17.addGeometry(Part.LineSegment(App.Vector(45.920937, -17.384827, 0), App.Vector(45.920937, 28.615173, 0)), False)
sketch17.addGeometry(Part.LineSegment(App.Vector(45.920937, 28.615173, 0), App.Vector(30.920937, 28.615173, 0)), False)
sketch17.addGeometry(Part.Circle(App.Vector(38.420937, -8.692414, 0), App.Vector(0, 0, 1), 2), False)
sketch17.addGeometry(Part.Circle(App.Vector(38.420937, 20.41952, 0), App.Vector(0, 0, 1), 2), False)
sketch17.addConstraint(Sketcher.Constraint("Coincident", 0, 2, 1, 1))
sketch17.addConstraint(Sketcher.Constraint("Coincident", 1, 2, 2, 1))
sketch17.addConstraint(Sketcher.Constraint("Coincident", 2, 2, 3, 1))
sketch17.addConstraint(Sketcher.Constraint("Coincident", 3, 2, 0, 1))
sketch17.addConstraint(Sketcher.Constraint("Vertical", 0))
sketch17.addConstraint(Sketcher.Constraint("Horizontal", 1))
sketch17.addConstraint(Sketcher.Constraint("Vertical", 2))
sketch17.addConstraint(Sketcher.Constraint("Horizontal", 3))
sketch17.addConstraint(Sketcher.Constraint("Equal", 4, 5))
sketch17.addConstraint(Sketcher.Constraint("Vertical", 4, 3, 5, 3))
sketch17.addConstraint(Sketcher.Constraint("Diameter", 4, 4.0))
sketch17.addConstraint(Sketcher.Constraint("DistanceX", 1, 1, 1, 2, 15.0))
sketch17.addConstraint(Sketcher.Constraint("DistanceY", 0, 2, 0, 1, 46.0))
sketch17.addConstraint(Sketcher.Constraint("DistanceX", 0, 2, 4, 3, 7.5))
sketch17.addConstraint(Sketcher.Constraint("DistanceY", -1, 1, 5, 3, 20.41952))
sketch17.addConstraint(Sketcher.Constraint("DistanceX", -1, 1, 4, 3, 38.420937))
sketch17.addConstraint(Sketcher.Constraint("DistanceY", 4, 3, -1, 1, 8.692414))
sketch17.addConstraint(Sketcher.Constraint("DistanceY", 0, 2, -1, 1, 17.384827))
pad10 = doc.addObject("PartDesign::Pad", "Pad009")
body.addObject(pad10)
pad10.Profile = sketch17
pad10.Length = 1
pad10.Reversed = True

# Sketch on XY plane
sketch18 = doc.addObject("Sketcher::SketchObject", "Sketch017")
body.addObject(sketch18)
sketch18.AttachmentSupport = (doc.XY_Plane, [""])
sketch18.MapMode = "FlatFace"
sketch18.AttachmentOffset = App.Placement(App.Vector(0, 0, -17.384827), App.Rotation())
sketch18.addGeometry(Part.LineSegment(App.Vector(27.920937, 28, 0), App.Vector(45.920937, 28, 0)), False)
sketch18.addGeometry(Part.LineSegment(App.Vector(45.920937, 28, 0), App.Vector(45.920937, 24, 0)), False)
sketch18.addGeometry(Part.LineSegment(App.Vector(45.920937, 24, 0), App.Vector(30.920937, 24, 0)), False)
sketch18.addGeometry(Part.LineSegment(App.Vector(30.920937, 24, 0), App.Vector(30.920937, 0, 0)), False)
sketch18.addGeometry(Part.LineSegment(App.Vector(30.920937, 0, 0), App.Vector(-23.065983, 0, 0)), False)
sketch18.addGeometry(Part.LineSegment(App.Vector(-23.065983, 0, 0), App.Vector(-23.065983, 25, 0)), False)
sketch18.addGeometry(Part.LineSegment(App.Vector(-23.065983, 25, 0), App.Vector(-23.079063, 25, 0)), False)
sketch18.addGeometry(Part.LineSegment(App.Vector(-23.079063, 25, 0), App.Vector(-23.079063, 24, 0)), False)
sketch18.addGeometry(Part.LineSegment(App.Vector(-23.079063, 24, 0), App.Vector(-37.960253, 24, 0)), False)
sketch18.addGeometry(Part.LineSegment(App.Vector(-37.960253, 24, 0), App.Vector(-37.960253, 28, 0)), False)
sketch18.addGeometry(Part.LineSegment(App.Vector(-37.960253, 28, 0), App.Vector(-20.065983, 28, 0)), False)
sketch18.addGeometry(Part.LineSegment(App.Vector(-20.065983, 28, 0), App.Vector(-20.065983, 3, 0)), False)
sketch18.addGeometry(Part.LineSegment(App.Vector(-20.065983, 3, 0), App.Vector(27.920937, 3, 0)), False)
sketch18.addGeometry(Part.LineSegment(App.Vector(27.920937, 3, 0), App.Vector(27.920937, 28, 0)), False)
sketch18.addConstraint(Sketcher.Constraint("Coincident", 0, 2, 1, 1))
sketch18.addConstraint(Sketcher.Constraint("Coincident", 1, 2, 2, 1))
sketch18.addConstraint(Sketcher.Constraint("Coincident", 2, 2, 3, 1))
sketch18.addConstraint(Sketcher.Constraint("Coincident", 3, 2, 4, 1))
sketch18.addConstraint(Sketcher.Constraint("Coincident", 4, 2, 5, 1))
sketch18.addConstraint(Sketcher.Constraint("Coincident", 5, 2, 6, 1))
sketch18.addConstraint(Sketcher.Constraint("Coincident", 6, 2, 7, 1))
sketch18.addConstraint(Sketcher.Constraint("Coincident", 7, 2, 8, 1))
sketch18.addConstraint(Sketcher.Constraint("Coincident", 8, 2, 9, 1))
sketch18.addConstraint(Sketcher.Constraint("Coincident", 9, 2, 10, 1))
sketch18.addConstraint(Sketcher.Constraint("Coincident", 10, 2, 11, 1))
sketch18.addConstraint(Sketcher.Constraint("Coincident", 11, 2, 12, 1))
sketch18.addConstraint(Sketcher.Constraint("Coincident", 12, 2, 13, 1))
sketch18.addConstraint(Sketcher.Constraint("Coincident", 13, 2, 0, 1))
sketch18.addConstraint(Sketcher.Constraint("Horizontal", 0))
sketch18.addConstraint(Sketcher.Constraint("Vertical", 1))
sketch18.addConstraint(Sketcher.Constraint("Horizontal", 2))
sketch18.addConstraint(Sketcher.Constraint("Vertical", 3))
sketch18.addConstraint(Sketcher.Constraint("Horizontal", 4))
sketch18.addConstraint(Sketcher.Constraint("Vertical", 5))
sketch18.addConstraint(Sketcher.Constraint("Horizontal", 6))
sketch18.addConstraint(Sketcher.Constraint("Vertical", 7))
sketch18.addConstraint(Sketcher.Constraint("Horizontal", 8))
sketch18.addConstraint(Sketcher.Constraint("Vertical", 9))
sketch18.addConstraint(Sketcher.Constraint("Horizontal", 10))
sketch18.addConstraint(Sketcher.Constraint("Vertical", 11))
sketch18.addConstraint(Sketcher.Constraint("Horizontal", 12))
sketch18.addConstraint(Sketcher.Constraint("Vertical", 13))
sketch18.addConstraint(Sketcher.Constraint("PointOnObject", 3, 2, -1))
sketch18.addConstraint(Sketcher.Constraint("Horizontal", 2, 2, 7, 2))
sketch18.addConstraint(Sketcher.Constraint("Horizontal", 0, 2, 9, 2))
sketch18.addConstraint(Sketcher.Constraint("Equal", 5, 11))
sketch18.addConstraint(Sketcher.Constraint("DistanceX", 0, 1, 0, 2, 18.0))
sketch18.addConstraint(Sketcher.Constraint("DistanceX", 2, 2, 2, 1, 15.0))
sketch18.addConstraint(Sketcher.Constraint("DistanceY", 1, 2, 1, 1, 4.0))
sketch18.addConstraint(Sketcher.Constraint("DistanceY", 3, 2, 3, 1, 24.0))
sketch18.addConstraint(Sketcher.Constraint("DistanceY", 5, 1, 5, 2, 25.0))
sketch18.addConstraint(Sketcher.Constraint("DistanceX", 6, 2, 2, 2, 54.0))
sketch18.addConstraint(Sketcher.Constraint("DistanceX", 5, 2, 10, 2, 3.0))
sketch18.addConstraint(Sketcher.Constraint("DistanceX", 4, 2, 4, 1, 53.986921))
sketch18.addConstraint(Sketcher.Constraint("DistanceX", 8, 2, 8, 1, 14.881191))
sketch18.addConstraint(Sketcher.Constraint("DistanceX", -1, 1, 0, 2, 45.920937))
pad11 = doc.addObject("PartDesign::Pad", "Pad010")
body.addObject(pad11)
pad11.Profile = sketch18
pad11.Length = 2
pad11.Reversed = True

# Sketch on XY plane
sketch19 = doc.addObject("Sketcher::SketchObject", "Sketch018")
body.addObject(sketch19)
sketch19.AttachmentSupport = (doc.XY_Plane, [""])
sketch19.MapMode = "FlatFace"
sketch19.AttachmentOffset = App.Placement(App.Vector(0, 0, 28.615173), App.Rotation())
sketch19.addGeometry(Part.LineSegment(App.Vector(-20.065983, 28, 0), App.Vector(-37.960253, 28, 0)), False)
sketch19.addGeometry(Part.LineSegment(App.Vector(-37.960253, 28, 0), App.Vector(-37.960253, 24, 0)), False)
sketch19.addGeometry(Part.LineSegment(App.Vector(-37.960253, 24, 0), App.Vector(-23.079063, 24, 0)), False)
sketch19.addGeometry(Part.LineSegment(App.Vector(-23.079063, 24, 0), App.Vector(-23.079063, 25, 0)), False)
sketch19.addGeometry(Part.LineSegment(App.Vector(-23.079063, 25, 0), App.Vector(-23.065983, 25, 0)), False)
sketch19.addGeometry(Part.LineSegment(App.Vector(-23.065983, 25, 0), App.Vector(-23.065983, 0, 0)), False)
sketch19.addGeometry(Part.LineSegment(App.Vector(-23.065983, 0, 0), App.Vector(30.920937, 0, 0)), False)
sketch19.addGeometry(Part.LineSegment(App.Vector(30.920937, 0, 0), App.Vector(30.920937, 24, 0)), False)
sketch19.addGeometry(Part.LineSegment(App.Vector(30.920937, 24, 0), App.Vector(45.920937, 24, 0)), False)
sketch19.addGeometry(Part.LineSegment(App.Vector(45.920937, 24, 0), App.Vector(45.920937, 28, 0)), False)
sketch19.addGeometry(Part.LineSegment(App.Vector(45.920937, 28, 0), App.Vector(27.920937, 28, 0)), False)
sketch19.addGeometry(Part.LineSegment(App.Vector(27.920937, 28, 0), App.Vector(27.920937, 3, 0)), False)
sketch19.addGeometry(Part.LineSegment(App.Vector(27.920937, 3, 0), App.Vector(-20.065983, 3, 0)), False)
sketch19.addGeometry(Part.LineSegment(App.Vector(-20.065983, 3, 0), App.Vector(-20.065983, 28, 0)), False)
sketch19.addConstraint(Sketcher.Constraint("Coincident", 0, 2, 1, 1))
sketch19.addConstraint(Sketcher.Constraint("Coincident", 1, 2, 2, 1))
sketch19.addConstraint(Sketcher.Constraint("Coincident", 2, 2, 3, 1))
sketch19.addConstraint(Sketcher.Constraint("Coincident", 3, 2, 4, 1))
sketch19.addConstraint(Sketcher.Constraint("Coincident", 4, 2, 5, 1))
sketch19.addConstraint(Sketcher.Constraint("Coincident", 5, 2, 6, 1))
sketch19.addConstraint(Sketcher.Constraint("Coincident", 6, 2, 7, 1))
sketch19.addConstraint(Sketcher.Constraint("Coincident", 7, 2, 8, 1))
sketch19.addConstraint(Sketcher.Constraint("Coincident", 8, 2, 9, 1))
sketch19.addConstraint(Sketcher.Constraint("Coincident", 9, 2, 10, 1))
sketch19.addConstraint(Sketcher.Constraint("Coincident", 10, 2, 11, 1))
sketch19.addConstraint(Sketcher.Constraint("Coincident", 11, 2, 12, 1))
sketch19.addConstraint(Sketcher.Constraint("Coincident", 12, 2, 13, 1))
sketch19.addConstraint(Sketcher.Constraint("Coincident", 13, 2, 0, 1))
sketch19.addConstraint(Sketcher.Constraint("Horizontal", 0))
sketch19.addConstraint(Sketcher.Constraint("Vertical", 1))
sketch19.addConstraint(Sketcher.Constraint("Horizontal", 2))
sketch19.addConstraint(Sketcher.Constraint("Vertical", 3))
sketch19.addConstraint(Sketcher.Constraint("Horizontal", 4))
sketch19.addConstraint(Sketcher.Constraint("Vertical", 5))
sketch19.addConstraint(Sketcher.Constraint("Horizontal", 6))
sketch19.addConstraint(Sketcher.Constraint("Vertical", 7))
sketch19.addConstraint(Sketcher.Constraint("Horizontal", 8))
sketch19.addConstraint(Sketcher.Constraint("Vertical", 9))
sketch19.addConstraint(Sketcher.Constraint("Horizontal", 10))
sketch19.addConstraint(Sketcher.Constraint("Vertical", 11))
sketch19.addConstraint(Sketcher.Constraint("Horizontal", 12))
sketch19.addConstraint(Sketcher.Constraint("Vertical", 13))
sketch19.addConstraint(Sketcher.Constraint("PointOnObject", 5, 2, -1))
sketch19.addConstraint(Sketcher.Constraint("Horizontal", 2, 2, 7, 2))
sketch19.addConstraint(Sketcher.Constraint("Horizontal", 0, 2, 9, 2))
sketch19.addConstraint(Sketcher.Constraint("Equal", 5, 11))
sketch19.addConstraint(Sketcher.Constraint("DistanceX", 8, 1, 8, 2, 15.0))
sketch19.addConstraint(Sketcher.Constraint("DistanceX", 10, 2, 10, 1, 18.0))
sketch19.addConstraint(Sketcher.Constraint("DistanceY", 1, 2, 1, 1, 4.0))
sketch19.addConstraint(Sketcher.Constraint("DistanceY", 3, 1, 3, 2, 1.0))
sketch19.addConstraint(Sketcher.Constraint("DistanceY", 5, 2, 5, 1, 25.0))
sketch19.addConstraint(Sketcher.Constraint("DistanceX", 2, 2, 6, 2, 54.0))
sketch19.addConstraint(Sketcher.Constraint("DistanceX", 5, 2, 12, 2, 3.0))
sketch19.addConstraint(Sketcher.Constraint("DistanceX", 0, 2, 0, 1, 17.89427))
sketch19.addConstraint(Sketcher.Constraint("DistanceX", 2, 1, 2, 2, 14.881191))
sketch19.addConstraint(Sketcher.Constraint("DistanceX", 0, 2, -1, 1, 37.960253))
pad12 = doc.addObject("PartDesign::Pad", "Pad011")
body.addObject(pad12)
pad12.Profile = sketch19
pad12.Length = 2

# Sketch on XZ plane
sketch20 = doc.addObject("Sketcher::SketchObject", "Sketch019")
body.addObject(sketch20)
sketch20.AttachmentSupport = (doc.XZ_Plane, [""])
sketch20.MapMode = "FlatFace"
sketch20.AttachmentOffset = App.Placement(App.Vector(0, 0, -3), App.Rotation())
sketch20.addGeometry(Part.LineSegment(App.Vector(-20.065983, -19.384827, 0), App.Vector(-20.065983, -17.384827, 0)), False)
sketch20.addGeometry(Part.LineSegment(App.Vector(-20.065983, -17.384827, 0), App.Vector(27.920937, -17.384827, 0)), False)
sketch20.addGeometry(Part.LineSegment(App.Vector(27.920937, -17.384827, 0), App.Vector(27.920937, -19.384827, 0)), False)
sketch20.addGeometry(Part.LineSegment(App.Vector(27.920937, -19.384827, 0), App.Vector(-20.065983, -19.384827, 0)), False)
sketch20.addConstraint(Sketcher.Constraint("Coincident", 0, 2, 1, 1))
sketch20.addConstraint(Sketcher.Constraint("Coincident", 1, 2, 2, 1))
sketch20.addConstraint(Sketcher.Constraint("Coincident", 2, 2, 3, 1))
sketch20.addConstraint(Sketcher.Constraint("Coincident", 3, 2, 0, 1))
sketch20.addConstraint(Sketcher.Constraint("Vertical", 0))
sketch20.addConstraint(Sketcher.Constraint("Horizontal", 1))
sketch20.addConstraint(Sketcher.Constraint("Vertical", 2))
sketch20.addConstraint(Sketcher.Constraint("Horizontal", 3))
sketch20.addConstraint(Sketcher.Constraint("DistanceY", 0, 1, 0, 2, 2.0))
sketch20.addConstraint(Sketcher.Constraint("DistanceX", 1, 1, 1, 2, 47.986921))
sketch20.addConstraint(Sketcher.Constraint("DistanceX", 0, 2, -1, 1, 20.065983))
sketch20.addConstraint(Sketcher.Constraint("DistanceY", 0, 2, -1, 1, 17.384827))
pad13 = doc.addObject("PartDesign::Pad", "Pad012")
body.addObject(pad13)
pad13.Profile = sketch20
pad13.Length = 10
pad13.Reversed = True

# Sketch on XY plane
sketch21 = doc.addObject("Sketcher::SketchObject", "Sketch020")
body.addObject(sketch21)
sketch21.AttachmentSupport = (doc.XY_Plane, [""])
sketch21.MapMode = "FlatFace"
sketch21.AttachmentOffset = App.Placement(App.Vector(0, 0, -17.384827), App.Rotation())
sketch21.addGeometry(Part.LineSegment(App.Vector(-20.065983, 13, 0), App.Vector(-9.830587, 2.764604, 0)), False)
sketch21.addGeometry(Part.LineSegment(App.Vector(-9.830587, 2.764604, 0), App.Vector(17.920937, 3, 0)), False)
sketch21.addGeometry(Part.LineSegment(App.Vector(17.920937, 3, 0), App.Vector(27.920937, 13, 0)), False)
sketch21.addGeometry(Part.LineSegment(App.Vector(27.920937, 13, 0), App.Vector(-20.065983, 13, 0)), False)
sketch21.addConstraint(Sketcher.Constraint("Coincident", 0, 2, 1, 1))
sketch21.addConstraint(Sketcher.Constraint("Coincident", 1, 2, 2, 1))
sketch21.addConstraint(Sketcher.Constraint("Coincident", 2, 2, 3, 1))
sketch21.addConstraint(Sketcher.Constraint("Coincident", 3, 2, 0, 1))
sketch21.addConstraint(Sketcher.Constraint("Horizontal", 3))
sketch21.addConstraint(Sketcher.Constraint("Perpendicular", 0, 2))
sketch21.addConstraint(Sketcher.Constraint("Angle", 0, Q("-45 deg")))
sketch21.addConstraint(Sketcher.Constraint("DistanceY", -1, 1, 1, 2, 3.0))
sketch21.addConstraint(Sketcher.Constraint("DistanceY", -1, 1, 2, 2, 13.0))
sketch21.addConstraint(Sketcher.Constraint("DistanceX", 3, 2, 3, 1, 47.986921))
sketch21.addConstraint(Sketcher.Constraint("Distance", 0, 14.475036))
sketch21.addConstraint(Sketcher.Constraint("DistanceX", 0, 2, -1, 1, 9.830587))
pocket8 = doc.addObject("PartDesign::Pocket", "Pocket007")
body.addObject(pocket8)
pocket8.Profile = sketch21
pocket8.Length = 10

doc.recompute()
